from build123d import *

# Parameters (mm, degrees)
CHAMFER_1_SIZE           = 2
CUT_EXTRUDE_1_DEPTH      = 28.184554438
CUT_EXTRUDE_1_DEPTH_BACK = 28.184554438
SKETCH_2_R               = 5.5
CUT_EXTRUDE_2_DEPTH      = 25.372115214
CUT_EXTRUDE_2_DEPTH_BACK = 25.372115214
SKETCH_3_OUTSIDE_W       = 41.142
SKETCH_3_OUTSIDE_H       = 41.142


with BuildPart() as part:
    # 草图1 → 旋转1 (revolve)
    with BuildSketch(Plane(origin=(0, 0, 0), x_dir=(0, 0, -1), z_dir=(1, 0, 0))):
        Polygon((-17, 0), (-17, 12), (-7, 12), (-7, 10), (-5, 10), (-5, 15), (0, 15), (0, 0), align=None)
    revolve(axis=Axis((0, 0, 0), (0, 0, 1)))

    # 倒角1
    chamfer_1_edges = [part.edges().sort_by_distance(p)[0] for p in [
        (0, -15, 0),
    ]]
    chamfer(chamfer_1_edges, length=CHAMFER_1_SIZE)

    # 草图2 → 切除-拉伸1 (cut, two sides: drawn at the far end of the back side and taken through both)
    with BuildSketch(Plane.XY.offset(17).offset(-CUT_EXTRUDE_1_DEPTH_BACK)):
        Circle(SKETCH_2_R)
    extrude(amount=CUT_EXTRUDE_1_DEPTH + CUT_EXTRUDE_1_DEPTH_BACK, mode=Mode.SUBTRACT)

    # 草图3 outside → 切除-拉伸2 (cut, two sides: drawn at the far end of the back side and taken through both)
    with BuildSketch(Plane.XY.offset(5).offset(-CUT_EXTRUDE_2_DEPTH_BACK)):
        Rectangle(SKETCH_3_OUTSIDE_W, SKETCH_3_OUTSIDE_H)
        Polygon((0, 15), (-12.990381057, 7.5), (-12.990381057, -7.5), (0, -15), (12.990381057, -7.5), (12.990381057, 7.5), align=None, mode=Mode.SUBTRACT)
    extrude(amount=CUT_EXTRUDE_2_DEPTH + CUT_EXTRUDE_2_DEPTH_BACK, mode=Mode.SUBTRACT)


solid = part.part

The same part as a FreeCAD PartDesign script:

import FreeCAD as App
import Part
import Sketcher
from FreeCAD import Vector
Q = App.Units.Quantity


def edges_at(feature, points):
    """Names of the edges that pass closest to the given points."""
    edges = feature.Shape.Edges
    near = lambda p: min(range(len(edges)), key=lambda i: edges[i].distToShape(Part.Vertex(*p))[0])
    return sorted({f"Edge{near(p) + 1}" for p in points})

doc = App.newDocument("Part")
body = doc.addObject("PartDesign::Body", "Body")

# Sketch on YZ plane
sketch1 = body.newObject("Sketcher::SketchObject", "Sketch")
sketch1.AttachmentSupport = (doc.getObject("YZ_Plane"), [""])
sketch1.MapMode = "FlatFace"
sketch1.addGeometry(Part.LineSegment(Vector(12, 17, 0), Vector(0, 17, 0)), False)
sketch1.addGeometry(Part.LineSegment(Vector(0, 17, 0), Vector(0, 0, 0)), False)
sketch1.addGeometry(Part.LineSegment(Vector(0, 0, 0), Vector(15, 0, 0)), False)
sketch1.addGeometry(Part.LineSegment(Vector(15, 0, 0), Vector(15, 5, 0)), False)
sketch1.addGeometry(Part.LineSegment(Vector(15, 5, 0), Vector(10, 5, 0)), False)
sketch1.addGeometry(Part.LineSegment(Vector(10, 5, 0), Vector(10, 7, 0)), False)
sketch1.addGeometry(Part.LineSegment(Vector(10, 7, 0), Vector(12, 7, 0)), False)
sketch1.addGeometry(Part.LineSegment(Vector(12, 7, 0), Vector(12, 17, 0)), False)
sketch1.addConstraint(Sketcher.Constraint("Coincident", 0, 2, 1, 1))
sketch1.addConstraint(Sketcher.Constraint("Coincident", 1, 2, 2, 1))
sketch1.addConstraint(Sketcher.Constraint("Coincident", 2, 2, 3, 1))
sketch1.addConstraint(Sketcher.Constraint("Coincident", 3, 2, 4, 1))
sketch1.addConstraint(Sketcher.Constraint("Coincident", 4, 2, 5, 1))
sketch1.addConstraint(Sketcher.Constraint("Coincident", 5, 2, 6, 1))
sketch1.addConstraint(Sketcher.Constraint("Coincident", 6, 2, 7, 1))
sketch1.addConstraint(Sketcher.Constraint("Coincident", 7, 2, 0, 1))
sketch1.addConstraint(Sketcher.Constraint("Horizontal", 0))
sketch1.addConstraint(Sketcher.Constraint("Vertical", 1))
sketch1.addConstraint(Sketcher.Constraint("Horizontal", 2))
sketch1.addConstraint(Sketcher.Constraint("Vertical", 3))
sketch1.addConstraint(Sketcher.Constraint("Horizontal", 4))
sketch1.addConstraint(Sketcher.Constraint("Vertical", 5))
sketch1.addConstraint(Sketcher.Constraint("Horizontal", 6))
sketch1.addConstraint(Sketcher.Constraint("Vertical", 7))
sketch1.addConstraint(Sketcher.Constraint("Coincident", 1, 2, -1, 1))
sketch1.addConstraint(Sketcher.Constraint("Equal", 4, 3))
sketch1.addConstraint(Sketcher.Constraint("Equal", 6, 5))
sketch1.addConstraint(Sketcher.Constraint("DistanceX", 0, 2, 0, 1, Q("12 mm")))
sketch1.addConstraint(Sketcher.Constraint("DistanceX", 2, 1, 2, 2, Q("15 mm")))
sketch1.addConstraint(Sketcher.Constraint("DistanceX", 4, 2, 4, 1, Q("5 mm")))
sketch1.addConstraint(Sketcher.Constraint("DistanceY", 1, 2, 1, 1, Q("17 mm")))
revolution = body.newObject("PartDesign::Revolution", "Revolution")
revolution.Profile = sketch1
revolution.ReferenceAxis = (sketch1, ["V_Axis"])
revolution.Angle = 360
doc.recompute()

chamfer = body.newObject("PartDesign::Chamfer", "Chamfer")
chamfer.Base = (revolution, edges_at(revolution, [(0, -15, 0)]))
chamfer.Size = 2

# Sketch on XY plane
sketch2 = body.newObject("Sketcher::SketchObject", "Sketch001")
sketch2.AttachmentSupport = (doc.getObject("XY_Plane"), [""])
sketch2.MapMode = "FlatFace"
sketch2.AttachmentOffset = App.Placement(Vector(0, 0, 17), App.Rotation())
sketch2.addGeometry(Part.Circle(Vector(0, 0, 0), Vector(0, 0, 1), 6), False)
sketch2.addConstraint(Sketcher.Constraint("Coincident", 0, 3, -1, 1))
sketch2.addConstraint(Sketcher.Constraint("Diameter", 0, Q("11 mm")))
pocket1 = body.newObject("PartDesign::Pocket", "Pocket")
pocket1.Profile = sketch2
pocket1.Type = "ThroughAll"
pocket1.Midplane = True

# Sketch on XY plane
sketch3 = body.newObject("Sketcher::SketchObject", "Sketch002")
sketch3.AttachmentSupport = (doc.getObject("XY_Plane"), [""])
sketch3.MapMode = "FlatFace"
sketch3.AttachmentOffset = App.Placement(Vector(0, 0, 5), App.Rotation())
sketch3.addGeometry(Part.LineSegment(Vector(-21, 21, 0), Vector(-21, -21, 0)), False)
sketch3.addGeometry(Part.LineSegment(Vector(-21, -21, 0), Vector(21, -21, 0)), False)
sketch3.addGeometry(Part.LineSegment(Vector(21, -21, 0), Vector(21, 21, 0)), False)
sketch3.addGeometry(Part.LineSegment(Vector(21, 21, 0), Vector(-21, 21, 0)), False)
sketch3.addGeometry(Part.LineSegment(Vector(-13, 8, 0), Vector(0, 15, 0)), False)
sketch3.addGeometry(Part.LineSegment(Vector(0, 15, 0), Vector(13, 8, 0)), False)
sketch3.addGeometry(Part.LineSegment(Vector(13, 8, 0), Vector(13, -8, 0)), False)
sketch3.addGeometry(Part.LineSegment(Vector(13, -8, 0), Vector(0, -15, 0)), False)
sketch3.addGeometry(Part.LineSegment(Vector(0, -15, 0), Vector(-13, -8, 0)), False)
sketch3.addGeometry(Part.LineSegment(Vector(-13, -8, 0), Vector(-13, 8, 0)), False)
sketch3.addConstraint(Sketcher.Constraint("Coincident", 0, 2, 1, 1))
sketch3.addConstraint(Sketcher.Constraint("Coincident", 1, 2, 2, 1))
sketch3.addConstraint(Sketcher.Constraint("Coincident", 2, 2, 3, 1))
sketch3.addConstraint(Sketcher.Constraint("Coincident", 3, 2, 0, 1))
sketch3.addConstraint(Sketcher.Constraint("Coincident", 4, 2, 5, 1))
sketch3.addConstraint(Sketcher.Constraint("Coincident", 5, 2, 6, 1))
sketch3.addConstraint(Sketcher.Constraint("Coincident", 6, 2, 7, 1))
sketch3.addConstraint(Sketcher.Constraint("Coincident", 7, 2, 8, 1))
sketch3.addConstraint(Sketcher.Constraint("Coincident", 8, 2, 9, 1))
sketch3.addConstraint(Sketcher.Constraint("Coincident", 9, 2, 4, 1))
sketch3.addConstraint(Sketcher.Constraint("Vertical", 0))
sketch3.addConstraint(Sketcher.Constraint("Horizontal", 1))
sketch3.addConstraint(Sketcher.Constraint("Vertical", 2))
sketch3.addConstraint(Sketcher.Constraint("Horizontal", 3))
sketch3.addConstraint(Sketcher.Constraint("Vertical", 6))
sketch3.addConstraint(Sketcher.Constraint("Vertical", 9))
sketch3.addConstraint(Sketcher.Constraint("Symmetric", 0, 2, 2, 2, -1, 1))
sketch3.addConstraint(Sketcher.Constraint("Symmetric", 4, 2, 7, 2, -1, 1))
sketch3.addConstraint(Sketcher.Constraint("Symmetric", 5, 2, 8, 2, -1, 1))
sketch3.addConstraint(Sketcher.Constraint("PointOnObject", 4, 2, -2))
sketch3.addConstraint(Sketcher.Constraint("Parallel", 4, 7))
sketch3.addConstraint(Sketcher.Constraint("Horizontal", 6, 2, 8, 2))
sketch3.addConstraint(Sketcher.Constraint("Equal", 3, 0))
sketch3.addConstraint(Sketcher.Constraint("DistanceY", 6, 2, 6, 1, Q("15 mm")))
sketch3.addConstraint(Sketcher.Constraint("Angle", 4, Q("30 deg")))
sketch3.addConstraint(Sketcher.Constraint("Distance", 4, Q("15 mm")))
sketch3.addConstraint(Sketcher.Constraint("DistanceX", 1, 1, 1, 2, Q("41.142 mm")))
pocket2 = body.newObject("PartDesign::Pocket", "Pocket001")
pocket2.Profile = sketch3
pocket2.Type = "ThroughAll"
pocket2.Midplane = True

doc.recompute()
